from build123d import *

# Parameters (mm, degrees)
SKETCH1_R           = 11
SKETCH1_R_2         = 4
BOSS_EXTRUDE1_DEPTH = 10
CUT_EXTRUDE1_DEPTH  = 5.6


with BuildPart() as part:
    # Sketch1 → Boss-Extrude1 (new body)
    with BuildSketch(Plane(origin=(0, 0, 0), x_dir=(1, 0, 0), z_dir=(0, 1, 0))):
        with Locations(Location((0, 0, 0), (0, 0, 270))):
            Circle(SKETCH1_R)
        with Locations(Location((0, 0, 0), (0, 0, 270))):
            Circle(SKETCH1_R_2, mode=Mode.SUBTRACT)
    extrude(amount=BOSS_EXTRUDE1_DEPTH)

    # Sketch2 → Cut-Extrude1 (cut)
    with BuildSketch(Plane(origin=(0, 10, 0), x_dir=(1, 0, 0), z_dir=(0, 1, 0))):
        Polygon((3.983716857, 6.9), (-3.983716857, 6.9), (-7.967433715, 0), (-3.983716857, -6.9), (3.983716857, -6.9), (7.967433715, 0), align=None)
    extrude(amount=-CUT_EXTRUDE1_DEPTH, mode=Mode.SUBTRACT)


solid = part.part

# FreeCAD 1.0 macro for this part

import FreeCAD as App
import Part
import Sketcher
Q = App.Units.Quantity

doc = App.newDocument("Part")
body = doc.addObject("PartDesign::Body", "Body")

sketch1 = body.newObject("Sketcher::SketchObject", "Sketch")
sketch1.AttachmentSupport = (doc.getObject("XZ_Plane"), [""])
sketch1.MapMode = "FlatFace"
sketch1.addGeometry(Part.Circle(App.Vector(0, 0, 0), App.Vector(0, 0, 1), 11), False)
sketch1.addGeometry(Part.Circle(App.Vector(0, 0, 0), App.Vector(0, 0, 1), 4), False)
sketch1.addConstraint(Sketcher.Constraint("Coincident", 0, 3, -1, 1))
sketch1.addConstraint(Sketcher.Constraint("Coincident", 1, 3, -1, 1))
sketch1.addConstraint(Sketcher.Constraint("Diameter", 0, 22.0))
sketch1.addConstraint(Sketcher.Constraint("Diameter", 1, 8.0))
pad1 = body.newObject("PartDesign::Pad", "Pad")
pad1.Profile = sketch1
pad1.Length = 10
pad1.Reversed = True

sketch2 = body.newObject("Sketcher::SketchObject", "Sketch001")
sketch2.AttachmentSupport = (doc.getObject("XZ_Plane"), [""])
sketch2.MapMode = "FlatFace"
sketch2.AttachmentOffset = App.Placement(App.Vector(0, 0, -10), App.Rotation())
sketch2.addGeometry(Part.LineSegment(App.Vector(4, -7, 0), App.Vector(-4, -7, 0)), False)
sketch2.addGeometry(Part.LineSegment(App.Vector(-4, -7, 0), App.Vector(-8, 0, 0)), False)
sketch2.addGeometry(Part.LineSegment(App.Vector(-8, 0, 0), App.Vector(-4, 7, 0)), False)
sketch2.addGeometry(Part.LineSegment(App.Vector(-4, 7, 0), App.Vector(4, 7, 0)), False)
sketch2.addGeometry(Part.LineSegment(App.Vector(4, 7, 0), App.Vector(8, 0, 0)), False)
sketch2.addGeometry(Part.LineSegment(App.Vector(8, 0, 0), App.Vector(4, -7, 0)), False)
sketch2.addConstraint(Sketcher.Constraint("Coincident", 0, 2, 1, 1))
sketch2.addConstraint(Sketcher.Constraint("Coincident", 1, 2, 2, 1))
sketch2.addConstraint(Sketcher.Constraint("Coincident", 2, 2, 3, 1))
sketch2.addConstraint(Sketcher.Constraint("Coincident", 3, 2, 4, 1))
sketch2.addConstraint(Sketcher.Constraint("Coincident", 4, 2, 5, 1))
sketch2.addConstraint(Sketcher.Constraint("Coincident", 5, 2, 0, 1))
sketch2.addConstraint(Sketcher.Constraint("Horizontal", 0))
sketch2.addConstraint(Sketcher.Constraint("Horizontal", 3))
sketch2.addConstraint(Sketcher.Constraint("Symmetric", 0, 2, 3, 2, -1, 1))
sketch2.addConstraint(Sketcher.Constraint("Symmetric", 1, 2, 4, 2, -1, 1))
sketch2.addConstraint(Sketcher.Constraint("PointOnObject", 1, 2, -1))
sketch2.addConstraint(Sketcher.Constraint("Parallel", 2, 5))
sketch2.addConstraint(Sketcher.Constraint("Vertical", 0, 2, 2, 2))
sketch2.addConstraint(Sketcher.Constraint("Angle", 1, Q("120 deg")))
sketch2.addConstraint(Sketcher.Constraint("DistanceY", 0, 2, -1, 1, 6.9))
sketch2.addConstraint(Sketcher.Constraint("DistanceX", 0, 2, 0, 1, 7.967434))
pocket1 = body.newObject("PartDesign::Pocket", "Pocket")
pocket1.Profile = sketch2
pocket1.Length = 5.6
pocket1.Reversed = True

doc.recompute()
